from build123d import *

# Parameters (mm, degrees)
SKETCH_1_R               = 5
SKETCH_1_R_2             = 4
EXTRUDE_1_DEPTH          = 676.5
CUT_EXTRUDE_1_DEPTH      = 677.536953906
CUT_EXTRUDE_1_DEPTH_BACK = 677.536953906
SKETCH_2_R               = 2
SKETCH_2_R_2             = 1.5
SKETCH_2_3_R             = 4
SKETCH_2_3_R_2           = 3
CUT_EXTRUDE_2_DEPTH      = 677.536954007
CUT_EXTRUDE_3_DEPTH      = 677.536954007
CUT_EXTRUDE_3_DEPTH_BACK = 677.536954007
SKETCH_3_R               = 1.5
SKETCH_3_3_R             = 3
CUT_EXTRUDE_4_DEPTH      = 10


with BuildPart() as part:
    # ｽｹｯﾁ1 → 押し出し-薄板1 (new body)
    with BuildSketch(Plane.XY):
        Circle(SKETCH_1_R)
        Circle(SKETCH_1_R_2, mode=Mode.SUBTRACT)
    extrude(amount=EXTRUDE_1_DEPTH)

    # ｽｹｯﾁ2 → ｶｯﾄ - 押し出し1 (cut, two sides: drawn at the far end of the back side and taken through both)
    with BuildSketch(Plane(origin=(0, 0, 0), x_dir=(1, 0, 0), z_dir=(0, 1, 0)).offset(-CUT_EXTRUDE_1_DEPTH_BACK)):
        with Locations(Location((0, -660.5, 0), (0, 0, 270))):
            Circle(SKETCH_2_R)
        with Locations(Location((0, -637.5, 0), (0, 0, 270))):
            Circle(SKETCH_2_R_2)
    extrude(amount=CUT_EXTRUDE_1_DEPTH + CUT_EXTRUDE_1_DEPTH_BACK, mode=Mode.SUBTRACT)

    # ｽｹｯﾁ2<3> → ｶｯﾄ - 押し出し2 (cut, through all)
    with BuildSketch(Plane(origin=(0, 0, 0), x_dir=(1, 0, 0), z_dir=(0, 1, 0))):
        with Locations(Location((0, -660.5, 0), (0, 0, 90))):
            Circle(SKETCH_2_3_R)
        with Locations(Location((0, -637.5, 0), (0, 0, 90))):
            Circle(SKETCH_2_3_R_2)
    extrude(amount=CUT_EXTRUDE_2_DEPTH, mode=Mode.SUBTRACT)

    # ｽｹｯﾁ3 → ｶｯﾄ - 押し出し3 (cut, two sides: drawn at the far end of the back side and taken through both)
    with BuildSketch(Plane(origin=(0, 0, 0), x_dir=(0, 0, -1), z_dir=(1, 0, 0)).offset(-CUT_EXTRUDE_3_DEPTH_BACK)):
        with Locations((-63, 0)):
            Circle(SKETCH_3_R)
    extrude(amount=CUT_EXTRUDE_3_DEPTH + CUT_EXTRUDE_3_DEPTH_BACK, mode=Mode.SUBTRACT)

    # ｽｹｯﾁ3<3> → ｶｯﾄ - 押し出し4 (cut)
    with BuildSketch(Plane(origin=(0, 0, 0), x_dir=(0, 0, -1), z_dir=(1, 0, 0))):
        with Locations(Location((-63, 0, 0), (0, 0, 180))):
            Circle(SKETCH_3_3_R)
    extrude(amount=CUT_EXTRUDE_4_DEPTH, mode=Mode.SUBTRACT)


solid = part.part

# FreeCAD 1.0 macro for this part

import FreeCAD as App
import Part
import Sketcher

doc = App.newDocument("Part")
body = doc.addObject("PartDesign::Body", "Body")

# Sketch on XY plane
sketch1 = doc.addObject("Sketcher::SketchObject", "Sketch")
body.addObject(sketch1)
sketch1.AttachmentSupport = (doc.XY_Plane, [""])
sketch1.MapMode = "FlatFace"
sketch1.addGeometry([
    Part.Circle(App.Vector(0, 0, 0), App.Vector(0, 0, 1), 5),
    Part.Circle(App.Vector(0, 0, 0), App.Vector(0, 0, 1), 4),
], False)
sketch1.addConstraint([
    Sketcher.Constraint("Coincident", 0, 3, -1, 1),
    Sketcher.Constraint("Coincident", 1, 3, -1, 1),
    Sketcher.Constraint("Diameter", 0, 10.0),
    Sketcher.Constraint("Diameter", 1, 8.0),
])
pad1 = doc.addObject("PartDesign::Pad", "Pad")
body.addObject(pad1)
pad1.Profile = sketch1
pad1.Length = 676.5

# Sketch on XZ plane
sketch2 = doc.addObject("Sketcher::SketchObject", "Sketch001")
body.addObject(sketch2)
sketch2.AttachmentSupport = (doc.XZ_Plane, [""])
sketch2.MapMode = "FlatFace"
sketch2.addGeometry([
    Part.Circle(App.Vector(0, 660.5, 0), App.Vector(0, 0, 1), 2),
    Part.Circle(App.Vector(0, 637.5, 0), App.Vector(0, 0, 1), 1.5),
], False)
sketch2.addConstraint([
    Sketcher.Constraint("PointOnObject", 0, 3, -2),
    Sketcher.Constraint("PointOnObject", 1, 3, -2),
    Sketcher.Constraint("Diameter", 0, 4.0),
    Sketcher.Constraint("Diameter", 1, 3.0),
    Sketcher.Constraint("DistanceY", 1, 3, 0, 3, 23.0),
    Sketcher.Constraint("DistanceY", -1, 1, 0, 3, 660.5),
])
pocket1 = doc.addObject("PartDesign::Pocket", "Pocket")
body.addObject(pocket1)
pocket1.Profile = sketch2
pocket1.Type = "ThroughAll"
pocket1.Midplane = True

# Sketch on XZ plane
sketch3 = doc.addObject("Sketcher::SketchObject", "Sketch002")
body.addObject(sketch3)
sketch3.AttachmentSupport = (doc.XZ_Plane, [""])
sketch3.MapMode = "FlatFace"
sketch3.addGeometry([
    Part.Circle(App.Vector(0, 660.5, 0), App.Vector(0, 0, 1), 4),
    Part.Circle(App.Vector(0, 637.5, 0), App.Vector(0, 0, 1), 3),
], False)
sketch3.addConstraint([
    Sketcher.Constraint("PointOnObject", 0, 3, -2),
    Sketcher.Constraint("PointOnObject", 1, 3, -2),
    Sketcher.Constraint("Diameter", 0, 8.0),
    Sketcher.Constraint("Diameter", 1, 6.0),
    Sketcher.Constraint("DistanceY", 1, 3, 0, 3, 23.0),
    Sketcher.Constraint("DistanceY", -1, 1, 0, 3, 660.5),
])
pocket2 = doc.addObject("PartDesign::Pocket", "Pocket001")
body.addObject(pocket2)
pocket2.Profile = sketch3
pocket2.Type = "ThroughAll"

# Sketch on YZ plane
sketch4 = doc.addObject("Sketcher::SketchObject", "Sketch003")
body.addObject(sketch4)
sketch4.AttachmentSupport = (doc.YZ_Plane, [""])
sketch4.MapMode = "FlatFace"
sketch4.addGeometry(Part.Circle(App.Vector(0, 63, 0), App.Vector(0, 0, 1), 1.5), False)
sketch4.addConstraint([
    Sketcher.Constraint("PointOnObject", 0, 3, -2),
    Sketcher.Constraint("Diameter", 0, 3.0),
    Sketcher.Constraint("DistanceY", -1, 1, 0, 3, 63.0),
])
pocket3 = doc.addObject("PartDesign::Pocket", "Pocket002")
body.addObject(pocket3)
pocket3.Profile = sketch4
pocket3.Type = "ThroughAll"
pocket3.Midplane = True

# Sketch on YZ plane
sketch5 = doc.addObject("Sketcher::SketchObject", "Sketch004")
body.addObject(sketch5)
sketch5.AttachmentSupport = (doc.YZ_Plane, [""])
sketch5.MapMode = "FlatFace"
sketch5.addGeometry(Part.Circle(App.Vector(0, 63, 0), App.Vector(0, 0, 1), 3), False)
sketch5.addConstraint([
    Sketcher.Constraint("PointOnObject", 0, 3, -2),
    Sketcher.Constraint("Diameter", 0, 6.0),
    Sketcher.Constraint("DistanceY", -1, 1, 0, 3, 63.0),
])
pocket4 = doc.addObject("PartDesign::Pocket", "Pocket003")
body.addObject(pocket4)
pocket4.Profile = sketch5
pocket4.Length = 10
pocket4.Reversed = True

doc.recompute()
